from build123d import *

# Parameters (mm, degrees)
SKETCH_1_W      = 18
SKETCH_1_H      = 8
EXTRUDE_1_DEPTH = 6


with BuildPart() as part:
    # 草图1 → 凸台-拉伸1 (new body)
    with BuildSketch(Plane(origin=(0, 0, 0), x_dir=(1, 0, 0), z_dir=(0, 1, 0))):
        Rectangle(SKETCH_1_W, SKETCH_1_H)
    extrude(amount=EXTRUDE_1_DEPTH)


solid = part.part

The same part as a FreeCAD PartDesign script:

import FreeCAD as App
import Part
import Sketcher
Q = App.Units.Quantity

doc = App.newDocument("Part")
body = doc.addObject("PartDesign::Body", "Body")

# Sketch on XZ plane
sketch1 = doc.addObject("Sketcher::SketchObject", "Sketch")
body.addObject(sketch1)
sketch1.AttachmentSupport = (doc.XZ_Plane, [""])
sketch1.MapMode = "FlatFace"
sketch1.addGeometry([
    Part.LineSegment(App.Vector(-9, -4, 0), App.Vector(-9, 4, 0)),
    Part.LineSegment(App.Vector(-9, 4, 0), App.Vector(9, 4, 0)),
    Part.LineSegment(App.Vector(9, 4, 0), App.Vector(9, -4, 0)),
    Part.LineSegment(App.Vector(9, -4, 0), App.Vector(-9, -4, 0)),
], False)
sketch1.addConstraint([
    Sketcher.Constraint("Coincident", 0, 2, 1, 1),
    Sketcher.Constraint("Coincident", 1, 2, 2, 1),
    Sketcher.Constraint("Coincident", 2, 2, 3, 1),
    Sketcher.Constraint("Coincident", 3, 2, 0, 1),
    Sketcher.Constraint("Vertical", 0),
    Sketcher.Constraint("Horizontal", 1),
    Sketcher.Constraint("Vertical", 2),
    Sketcher.Constraint("Horizontal", 3),
    Sketcher.Constraint("Symmetric", 0, 2, 2, 2, -1, 1),
    Sketcher.Constraint("DistanceX", 1, 1, 1, 2, Q("18 mm")),
    Sketcher.Constraint("DistanceY", 0, 1, 0, 2, Q("8 mm")),
])
pad1 = doc.addObject("PartDesign::Pad", "Pad")
body.addObject(pad1)
pad1.Profile = sketch1
pad1.Length = 6
pad1.Reversed = True

doc.recompute()
